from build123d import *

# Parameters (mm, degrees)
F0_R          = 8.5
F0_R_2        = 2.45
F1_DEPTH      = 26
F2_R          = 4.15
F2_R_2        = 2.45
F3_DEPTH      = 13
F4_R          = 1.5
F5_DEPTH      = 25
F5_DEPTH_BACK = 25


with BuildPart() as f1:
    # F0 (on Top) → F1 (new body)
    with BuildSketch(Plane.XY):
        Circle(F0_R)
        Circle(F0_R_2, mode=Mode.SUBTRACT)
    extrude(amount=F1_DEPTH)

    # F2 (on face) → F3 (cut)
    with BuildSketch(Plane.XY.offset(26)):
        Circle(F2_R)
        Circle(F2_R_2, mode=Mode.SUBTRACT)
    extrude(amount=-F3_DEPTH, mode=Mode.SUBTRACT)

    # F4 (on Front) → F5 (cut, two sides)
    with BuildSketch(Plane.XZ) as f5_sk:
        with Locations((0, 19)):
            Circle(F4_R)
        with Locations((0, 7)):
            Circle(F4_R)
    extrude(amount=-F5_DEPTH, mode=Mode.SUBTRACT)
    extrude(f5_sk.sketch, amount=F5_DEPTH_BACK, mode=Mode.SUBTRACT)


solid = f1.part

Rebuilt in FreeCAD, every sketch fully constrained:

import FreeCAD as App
import Part
import Sketcher
from FreeCAD import Vector
Q = App.Units.Quantity

doc = App.newDocument("Part")
body = doc.addObject("PartDesign::Body", "Body")

# Sketch on XY plane
sketch1 = body.newObject("Sketcher::SketchObject", "Sketch")
sketch1.AttachmentSupport = (doc.getObject("XY_Plane"), [""])
sketch1.MapMode = "FlatFace"
sketch1.addGeometry([
    Part.Circle(Vector(0, 0, 0), Vector(0, 0, 1), 8.5),
    Part.Circle(Vector(0, 0, 0), Vector(0, 0, 1), 2.5),
], False)
sketch1.addConstraint([
    Sketcher.Constraint("Coincident", 0, 3, -1, 1),
    Sketcher.Constraint("Coincident", 1, 3, -1, 1),
    Sketcher.Constraint("Diameter", 0, Q("17 mm")),
    Sketcher.Constraint("Diameter", 1, Q("4.9 mm")),
])
pad1 = body.newObject("PartDesign::Pad", "Pad")
pad1.Profile = sketch1
pad1.Length = 26

# Sketch on XY plane
sketch2 = body.newObject("Sketcher::SketchObject", "Sketch001")
sketch2.AttachmentSupport = (doc.getObject("XY_Plane"), [""])
sketch2.MapMode = "FlatFace"
sketch2.AttachmentOffset = App.Placement(Vector(0, 0, 26), App.Rotation())
sketch2.addGeometry([
    Part.Circle(Vector(0, 0, 0), Vector(0, 0, 1), 4.2),
    Part.Circle(Vector(0, 0, 0), Vector(0, 0, 1), 2.5),
], False)
sketch2.addConstraint([
    Sketcher.Constraint("Coincident", 0, 3, -1, 1),
    Sketcher.Constraint("Coincident", 1, 3, -1, 1),
    Sketcher.Constraint("Diameter", 0, Q("8.3 mm")),
    Sketcher.Constraint("Diameter", 1, Q("4.9 mm")),
])
pocket1 = body.newObject("PartDesign::Pocket", "Pocket")
pocket1.Profile = sketch2
pocket1.Length = 13

# Sketch on XZ plane
sketch3 = body.newObject("Sketcher::SketchObject", "Sketch002")
sketch3.AttachmentSupport = (doc.getObject("XZ_Plane"), [""])
sketch3.MapMode = "FlatFace"
sketch3.addGeometry([
    Part.Circle(Vector(0, 19, 0), Vector(0, 0, 1), 1.5),
    Part.Circle(Vector(0, 7, 0), Vector(0, 0, 1), 1.5),
], False)
sketch3.addConstraint([
    Sketcher.Constraint("Equal", 0, 1),
    Sketcher.Constraint("PointOnObject", 0, 3, -2),
    Sketcher.Constraint("PointOnObject", 1, 3, -2),
    Sketcher.Constraint("Diameter", 0, Q("3 mm")),
    Sketcher.Constraint("DistanceY", -1, 1, 0, 3, Q("19 mm")),
    Sketcher.Constraint("DistanceY", -1, 1, 1, 3, Q("7 mm")),
])
pocket2 = body.newObject("PartDesign::Pocket", "Pocket001")
pocket2.Profile = sketch3
pocket2.Type = "ThroughAll"
pocket2.Midplane = True

doc.recompute()
